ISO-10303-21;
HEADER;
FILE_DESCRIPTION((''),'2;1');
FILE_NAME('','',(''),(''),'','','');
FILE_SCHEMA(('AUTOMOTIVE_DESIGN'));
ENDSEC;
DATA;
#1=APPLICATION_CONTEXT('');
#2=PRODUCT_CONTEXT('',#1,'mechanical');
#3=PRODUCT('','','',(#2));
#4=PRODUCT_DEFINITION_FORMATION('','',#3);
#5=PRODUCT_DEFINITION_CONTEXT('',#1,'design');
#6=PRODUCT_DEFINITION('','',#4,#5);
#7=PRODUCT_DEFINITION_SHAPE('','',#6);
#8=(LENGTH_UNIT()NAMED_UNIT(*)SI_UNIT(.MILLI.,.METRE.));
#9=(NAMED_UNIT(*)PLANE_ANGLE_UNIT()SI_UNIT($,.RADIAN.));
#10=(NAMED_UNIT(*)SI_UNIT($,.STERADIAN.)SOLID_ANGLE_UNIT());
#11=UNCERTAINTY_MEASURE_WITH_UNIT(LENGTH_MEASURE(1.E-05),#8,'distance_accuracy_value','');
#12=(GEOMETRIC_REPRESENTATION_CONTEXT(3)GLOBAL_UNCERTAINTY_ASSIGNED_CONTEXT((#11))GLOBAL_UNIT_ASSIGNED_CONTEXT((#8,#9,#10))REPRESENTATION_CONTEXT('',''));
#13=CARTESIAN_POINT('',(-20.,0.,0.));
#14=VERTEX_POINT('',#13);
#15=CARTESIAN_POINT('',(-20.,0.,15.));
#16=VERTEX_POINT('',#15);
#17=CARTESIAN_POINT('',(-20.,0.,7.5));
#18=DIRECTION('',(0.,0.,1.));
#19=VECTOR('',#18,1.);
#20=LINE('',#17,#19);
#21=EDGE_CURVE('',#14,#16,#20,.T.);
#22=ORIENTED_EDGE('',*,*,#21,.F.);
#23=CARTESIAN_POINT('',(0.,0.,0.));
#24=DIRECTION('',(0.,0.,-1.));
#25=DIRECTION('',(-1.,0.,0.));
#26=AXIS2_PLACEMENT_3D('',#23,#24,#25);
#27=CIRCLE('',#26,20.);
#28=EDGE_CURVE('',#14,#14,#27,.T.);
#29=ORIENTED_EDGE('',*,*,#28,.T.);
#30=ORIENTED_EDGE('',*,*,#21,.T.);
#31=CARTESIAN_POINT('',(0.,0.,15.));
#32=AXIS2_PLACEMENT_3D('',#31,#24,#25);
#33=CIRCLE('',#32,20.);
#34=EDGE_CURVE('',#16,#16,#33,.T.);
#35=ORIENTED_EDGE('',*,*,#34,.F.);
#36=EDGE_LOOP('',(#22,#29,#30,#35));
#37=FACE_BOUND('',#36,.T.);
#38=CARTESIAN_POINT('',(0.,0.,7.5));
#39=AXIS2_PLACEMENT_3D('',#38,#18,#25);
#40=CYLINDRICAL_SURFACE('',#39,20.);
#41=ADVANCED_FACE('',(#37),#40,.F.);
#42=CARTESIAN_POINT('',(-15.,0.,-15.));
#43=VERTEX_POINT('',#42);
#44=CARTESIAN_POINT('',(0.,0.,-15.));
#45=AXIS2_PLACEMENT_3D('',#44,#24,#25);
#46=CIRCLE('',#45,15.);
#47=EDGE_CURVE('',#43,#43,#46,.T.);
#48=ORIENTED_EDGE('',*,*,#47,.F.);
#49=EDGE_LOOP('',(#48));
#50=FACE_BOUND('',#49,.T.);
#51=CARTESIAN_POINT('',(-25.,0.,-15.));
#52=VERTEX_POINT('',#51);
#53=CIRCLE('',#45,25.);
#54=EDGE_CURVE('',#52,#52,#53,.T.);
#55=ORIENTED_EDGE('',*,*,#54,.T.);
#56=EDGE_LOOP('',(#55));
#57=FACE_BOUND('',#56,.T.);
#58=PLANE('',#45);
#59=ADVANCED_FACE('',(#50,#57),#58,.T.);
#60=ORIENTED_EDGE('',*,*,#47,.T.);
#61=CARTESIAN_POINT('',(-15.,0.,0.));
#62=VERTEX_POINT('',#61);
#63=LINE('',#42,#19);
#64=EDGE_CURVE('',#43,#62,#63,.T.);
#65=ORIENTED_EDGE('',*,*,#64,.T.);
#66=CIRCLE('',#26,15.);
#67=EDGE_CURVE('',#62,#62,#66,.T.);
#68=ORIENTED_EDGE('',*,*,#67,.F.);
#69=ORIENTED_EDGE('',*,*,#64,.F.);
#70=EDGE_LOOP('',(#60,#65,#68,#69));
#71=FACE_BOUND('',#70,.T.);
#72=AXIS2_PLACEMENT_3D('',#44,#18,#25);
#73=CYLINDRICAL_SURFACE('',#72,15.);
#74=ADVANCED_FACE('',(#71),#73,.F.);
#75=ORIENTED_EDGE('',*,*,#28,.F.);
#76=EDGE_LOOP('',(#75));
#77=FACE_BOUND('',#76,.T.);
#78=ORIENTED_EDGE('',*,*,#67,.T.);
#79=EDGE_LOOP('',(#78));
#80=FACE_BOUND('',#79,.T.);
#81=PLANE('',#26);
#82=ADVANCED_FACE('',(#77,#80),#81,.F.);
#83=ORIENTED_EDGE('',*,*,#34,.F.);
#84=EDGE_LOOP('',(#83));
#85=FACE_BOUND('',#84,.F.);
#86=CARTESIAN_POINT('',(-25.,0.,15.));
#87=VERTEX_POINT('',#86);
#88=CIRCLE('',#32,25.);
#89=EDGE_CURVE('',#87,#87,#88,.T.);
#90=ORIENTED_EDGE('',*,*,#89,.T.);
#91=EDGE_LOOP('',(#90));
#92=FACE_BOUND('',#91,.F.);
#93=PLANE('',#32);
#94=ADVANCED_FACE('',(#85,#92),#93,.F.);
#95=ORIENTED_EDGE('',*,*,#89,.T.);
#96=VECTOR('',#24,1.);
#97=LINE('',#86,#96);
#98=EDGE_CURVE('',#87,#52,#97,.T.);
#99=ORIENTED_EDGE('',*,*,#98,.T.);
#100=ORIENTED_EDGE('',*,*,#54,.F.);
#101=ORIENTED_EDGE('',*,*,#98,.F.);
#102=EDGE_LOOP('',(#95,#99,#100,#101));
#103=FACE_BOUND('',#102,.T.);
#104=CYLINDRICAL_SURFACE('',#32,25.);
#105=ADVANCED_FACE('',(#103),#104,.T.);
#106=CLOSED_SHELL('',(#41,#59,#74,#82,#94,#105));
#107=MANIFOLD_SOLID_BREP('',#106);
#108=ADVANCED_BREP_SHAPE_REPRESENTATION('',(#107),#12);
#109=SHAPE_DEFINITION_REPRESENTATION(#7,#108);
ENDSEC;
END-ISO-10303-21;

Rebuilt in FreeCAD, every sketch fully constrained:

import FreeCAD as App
import Part
import Sketcher

V = App.Vector

doc = App.newDocument("Part")
body = doc.addObject("PartDesign::Body", "Body")

# Sketch on XZ plane
sketch1 = doc.addObject("Sketcher::SketchObject", "Sketch")
body.addObject(sketch1)
sketch1.AttachmentSupport = (doc.XZ_Plane, [""])
sketch1.MapMode = "FlatFace"
sketch1.addGeometry([
    Part.LineSegment(V(-25, -15, 0), V(-15, -15, 0)),  # 0
    Part.LineSegment(V(-15, -15, 0), V(-15, 0, 0)),  # 1
    Part.LineSegment(V(-15, 0, 0), V(-20, 0, 0)),  # 2
    Part.LineSegment(V(-20, 0, 0), V(-20, 15, 0)),  # 3
    Part.LineSegment(V(-20, 15, 0), V(-25, 15, 0)),  # 4
    Part.LineSegment(V(-25, 15, 0), V(-25, -15, 0)),  # 5
], False)
sketch1.addConstraint([
    Sketcher.Constraint("Coincident", 0, 2, 1, 1),
    Sketcher.Constraint("Coincident", 1, 2, 2, 1),
    Sketcher.Constraint("Coincident", 2, 2, 3, 1),
    Sketcher.Constraint("Coincident", 3, 2, 4, 1),
    Sketcher.Constraint("Coincident", 4, 2, 5, 1),
    Sketcher.Constraint("Coincident", 5, 2, 0, 1),
    Sketcher.Constraint("Horizontal", 0),
    Sketcher.Constraint("Vertical", 1),
    Sketcher.Constraint("Horizontal", 2),
    Sketcher.Constraint("Vertical", 3),
    Sketcher.Constraint("Horizontal", 4),
    Sketcher.Constraint("Vertical", 5),
    Sketcher.Constraint("PointOnObject", 1, 2, -1),
    Sketcher.Constraint("Equal", 2, 4),
    Sketcher.Constraint("Equal", 1, 3),
    Sketcher.Constraint("DistanceX", 0, 1, 0, 2, 10.0),
    Sketcher.Constraint("DistanceY", 1, 1, 1, 2, 15.0),
    Sketcher.Constraint("DistanceX", 0, 2, -1, 1, 15.0),
])
revolution = doc.addObject("PartDesign::Revolution", "Revolution")
body.addObject(revolution)
revolution.Profile = sketch1
revolution.ReferenceAxis = (sketch1, ["V_Axis"])
revolution.Angle = 360

doc.recompute()
